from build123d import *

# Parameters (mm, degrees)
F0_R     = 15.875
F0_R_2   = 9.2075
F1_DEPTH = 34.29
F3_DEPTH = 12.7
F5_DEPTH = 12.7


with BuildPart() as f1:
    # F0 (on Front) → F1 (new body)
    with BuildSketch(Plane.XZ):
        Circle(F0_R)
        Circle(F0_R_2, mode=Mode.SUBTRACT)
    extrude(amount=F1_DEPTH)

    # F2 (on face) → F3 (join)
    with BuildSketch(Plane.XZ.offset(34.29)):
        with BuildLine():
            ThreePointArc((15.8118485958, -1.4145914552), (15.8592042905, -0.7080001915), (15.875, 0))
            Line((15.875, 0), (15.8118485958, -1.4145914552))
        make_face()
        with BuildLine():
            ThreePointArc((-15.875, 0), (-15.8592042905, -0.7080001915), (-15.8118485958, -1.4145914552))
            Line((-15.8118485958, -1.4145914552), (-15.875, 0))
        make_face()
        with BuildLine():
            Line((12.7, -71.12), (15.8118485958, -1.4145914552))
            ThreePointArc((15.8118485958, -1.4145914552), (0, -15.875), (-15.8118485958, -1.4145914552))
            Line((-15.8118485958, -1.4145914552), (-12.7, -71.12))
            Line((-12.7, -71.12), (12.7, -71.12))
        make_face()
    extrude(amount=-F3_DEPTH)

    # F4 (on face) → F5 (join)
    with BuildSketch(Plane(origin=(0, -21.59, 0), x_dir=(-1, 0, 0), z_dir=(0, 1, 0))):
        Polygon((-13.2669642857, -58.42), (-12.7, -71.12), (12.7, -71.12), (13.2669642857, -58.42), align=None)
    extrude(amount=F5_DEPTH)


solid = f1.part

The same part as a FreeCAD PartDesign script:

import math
import FreeCAD as App
import Part
import Sketcher
from FreeCAD import Vector
Q = App.Units.Quantity

doc = App.newDocument("Part")
body = doc.addObject("PartDesign::Body", "Body")

sketch1 = body.newObject("Sketcher::SketchObject", "Sketch")
sketch1.AttachmentSupport = (doc.getObject("XZ_Plane"), [""])
sketch1.MapMode = "FlatFace"
sketch1.addGeometry([
    Part.Circle(Vector(0, 0, 0), Vector(0, 0, 1), 16),
    Part.Circle(Vector(0, 0, 0), Vector(0, 0, 1), 9),
], False)
sketch1.addConstraint([
    Sketcher.Constraint("Coincident", 0, 3, -1, 1),
    Sketcher.Constraint("Coincident", 1, 3, -1, 1),
    Sketcher.Constraint("Diameter", 0, Q("1.25 in")),
    Sketcher.Constraint("Diameter", 1, Q("0.725 in")),
])
pad1 = body.newObject("PartDesign::Pad", "Pad")
pad1.Profile = sketch1
pad1.Length = Q("1.35 in")

sketch2 = body.newObject("Sketcher::SketchObject", "Sketch001")
sketch2.AttachmentSupport = (doc.getObject("XZ_Plane"), [""])
sketch2.MapMode = "FlatFace"
sketch2.AttachmentOffset = App.Placement(Vector(0, 0, 1.35 * 25.4), App.Rotation())
sketch2.addGeometry([
    Part.ArcOfCircle(Part.Circle(Vector(0, 0, 0), Vector(0, 0, 1), 15.9), math.radians(-5.11), math.radians(0)),
    Part.LineSegment(Vector(15.9, 0, 0), Vector(15.8, -1.4, 0)),
    Part.ArcOfCircle(Part.Circle(Vector(0, 0, 0), Vector(0, 0, 1), 15.9), math.radians(-180), math.radians(-174.89)),
    Part.LineSegment(Vector(-15.8, -1.4, 0), Vector(-15.9, 0, 0)),
    Part.LineSegment(Vector(12.7, -71.1, 0), Vector(15.8, -1.4, 0)),
    Part.ArcOfCircle(Part.Circle(Vector(0, 0, 0), Vector(0, 0, 1), 15.9), math.radians(-175), math.radians(-5)),
    Part.LineSegment(Vector(-15.8, -1.4, 0), Vector(-12.7, -71.1, 0)),
    Part.LineSegment(Vector(-12.7, -71.1, 0), Vector(12.7, -71.1, 0)),
], False)
sketch2.addConstraint([
    Sketcher.Constraint("Coincident", 0, 1, 1, 2),
    Sketcher.Constraint("Coincident", 1, 1, 0, 2),
    Sketcher.Constraint("Coincident", 2, 1, 3, 2),
    Sketcher.Constraint("Coincident", 3, 1, 2, 2),
    Sketcher.Constraint("Coincident", 4, 2, 5, 2),
    Sketcher.Constraint("Coincident", 5, 1, 6, 1),
    Sketcher.Constraint("Coincident", 6, 2, 7, 1),
    Sketcher.Constraint("Coincident", 7, 2, 4, 1),
    Sketcher.Constraint("Horizontal", 7),
    Sketcher.Constraint("Coincident", 0, 3, -1, 1),
    Sketcher.Constraint("Coincident", 2, 3, -1, 1),
    Sketcher.Constraint("Coincident", 5, 3, -1, 1),
    Sketcher.Constraint("Coincident", 4, 2, 0, 1),
    Sketcher.Constraint("Coincident", 5, 1, 3, 1),
    Sketcher.Constraint("PointOnObject", 1, 1, -1),
    Sketcher.Constraint("PointOnObject", 2, 1, -1),
    Sketcher.Constraint("Parallel", 1, 4),
    Sketcher.Constraint("Parallel", 3, 6),
    Sketcher.Constraint("Horizontal", 0, 1, 3, 1),
    Sketcher.Constraint("DistanceX", 7, 1, 7, 2, Q("1 in")),
    Sketcher.Constraint("Radius", 0, Q("0.625 in")),
    Sketcher.Constraint("DistanceY", 6, 2, -1, 1, Q("2.8 in")),
])
pad2 = body.newObject("PartDesign::Pad", "Pad001")
pad2.Profile = sketch2
pad2.Length = Q("0.5 in")
pad2.Reversed = True

sketch3 = body.newObject("Sketcher::SketchObject", "Sketch002")
sketch3.AttachmentSupport = (doc.getObject("XZ_Plane"), [""])
sketch3.MapMode = "FlatFace"
sketch3.AttachmentOffset = App.Placement(Vector(0, 0, 0.85 * 25.4), App.Rotation())
sketch3.addGeometry([
    Part.LineSegment(Vector(13.266964, -58.42, 0), Vector(12.7, -71.12, 0)),
    Part.LineSegment(Vector(12.7, -71.12, 0), Vector(-12.7, -71.12, 0)),
    Part.LineSegment(Vector(-12.7, -71.12, 0), Vector(-13.266964, -58.42, 0)),
    Part.LineSegment(Vector(-13.266964, -58.42, 0), Vector(13.266964, -58.42, 0)),
], False)
sketch3.addConstraint([
    Sketcher.Constraint("Coincident", 0, 2, 1, 1),
    Sketcher.Constraint("Coincident", 1, 2, 2, 1),
    Sketcher.Constraint("Coincident", 2, 2, 3, 1),
    Sketcher.Constraint("Coincident", 3, 2, 0, 1),
    Sketcher.Constraint("Horizontal", 1),
    Sketcher.Constraint("Horizontal", 3),
    Sketcher.Constraint("Equal", 0, 2),
    Sketcher.Constraint("DistanceX", 1, 2, 1, 1, Q("1 in")),
    Sketcher.Constraint("DistanceX", -1, 1, 0, 2, Q("0.5 in")),
    Sketcher.Constraint("DistanceY", 0, 2, -1, 1, Q("2.8 in")),
    Sketcher.Constraint("DistanceY", 2, 2, -1, 1, Q("2.3 in")),
    Sketcher.Constraint("DistanceX", 3, 1, 3, 2, Q("26.533929 mm")),
])
pad3 = body.newObject("PartDesign::Pad", "Pad002")
pad3.Profile = sketch3
pad3.Length = Q("0.5 in")
pad3.Reversed = True

doc.recompute()
